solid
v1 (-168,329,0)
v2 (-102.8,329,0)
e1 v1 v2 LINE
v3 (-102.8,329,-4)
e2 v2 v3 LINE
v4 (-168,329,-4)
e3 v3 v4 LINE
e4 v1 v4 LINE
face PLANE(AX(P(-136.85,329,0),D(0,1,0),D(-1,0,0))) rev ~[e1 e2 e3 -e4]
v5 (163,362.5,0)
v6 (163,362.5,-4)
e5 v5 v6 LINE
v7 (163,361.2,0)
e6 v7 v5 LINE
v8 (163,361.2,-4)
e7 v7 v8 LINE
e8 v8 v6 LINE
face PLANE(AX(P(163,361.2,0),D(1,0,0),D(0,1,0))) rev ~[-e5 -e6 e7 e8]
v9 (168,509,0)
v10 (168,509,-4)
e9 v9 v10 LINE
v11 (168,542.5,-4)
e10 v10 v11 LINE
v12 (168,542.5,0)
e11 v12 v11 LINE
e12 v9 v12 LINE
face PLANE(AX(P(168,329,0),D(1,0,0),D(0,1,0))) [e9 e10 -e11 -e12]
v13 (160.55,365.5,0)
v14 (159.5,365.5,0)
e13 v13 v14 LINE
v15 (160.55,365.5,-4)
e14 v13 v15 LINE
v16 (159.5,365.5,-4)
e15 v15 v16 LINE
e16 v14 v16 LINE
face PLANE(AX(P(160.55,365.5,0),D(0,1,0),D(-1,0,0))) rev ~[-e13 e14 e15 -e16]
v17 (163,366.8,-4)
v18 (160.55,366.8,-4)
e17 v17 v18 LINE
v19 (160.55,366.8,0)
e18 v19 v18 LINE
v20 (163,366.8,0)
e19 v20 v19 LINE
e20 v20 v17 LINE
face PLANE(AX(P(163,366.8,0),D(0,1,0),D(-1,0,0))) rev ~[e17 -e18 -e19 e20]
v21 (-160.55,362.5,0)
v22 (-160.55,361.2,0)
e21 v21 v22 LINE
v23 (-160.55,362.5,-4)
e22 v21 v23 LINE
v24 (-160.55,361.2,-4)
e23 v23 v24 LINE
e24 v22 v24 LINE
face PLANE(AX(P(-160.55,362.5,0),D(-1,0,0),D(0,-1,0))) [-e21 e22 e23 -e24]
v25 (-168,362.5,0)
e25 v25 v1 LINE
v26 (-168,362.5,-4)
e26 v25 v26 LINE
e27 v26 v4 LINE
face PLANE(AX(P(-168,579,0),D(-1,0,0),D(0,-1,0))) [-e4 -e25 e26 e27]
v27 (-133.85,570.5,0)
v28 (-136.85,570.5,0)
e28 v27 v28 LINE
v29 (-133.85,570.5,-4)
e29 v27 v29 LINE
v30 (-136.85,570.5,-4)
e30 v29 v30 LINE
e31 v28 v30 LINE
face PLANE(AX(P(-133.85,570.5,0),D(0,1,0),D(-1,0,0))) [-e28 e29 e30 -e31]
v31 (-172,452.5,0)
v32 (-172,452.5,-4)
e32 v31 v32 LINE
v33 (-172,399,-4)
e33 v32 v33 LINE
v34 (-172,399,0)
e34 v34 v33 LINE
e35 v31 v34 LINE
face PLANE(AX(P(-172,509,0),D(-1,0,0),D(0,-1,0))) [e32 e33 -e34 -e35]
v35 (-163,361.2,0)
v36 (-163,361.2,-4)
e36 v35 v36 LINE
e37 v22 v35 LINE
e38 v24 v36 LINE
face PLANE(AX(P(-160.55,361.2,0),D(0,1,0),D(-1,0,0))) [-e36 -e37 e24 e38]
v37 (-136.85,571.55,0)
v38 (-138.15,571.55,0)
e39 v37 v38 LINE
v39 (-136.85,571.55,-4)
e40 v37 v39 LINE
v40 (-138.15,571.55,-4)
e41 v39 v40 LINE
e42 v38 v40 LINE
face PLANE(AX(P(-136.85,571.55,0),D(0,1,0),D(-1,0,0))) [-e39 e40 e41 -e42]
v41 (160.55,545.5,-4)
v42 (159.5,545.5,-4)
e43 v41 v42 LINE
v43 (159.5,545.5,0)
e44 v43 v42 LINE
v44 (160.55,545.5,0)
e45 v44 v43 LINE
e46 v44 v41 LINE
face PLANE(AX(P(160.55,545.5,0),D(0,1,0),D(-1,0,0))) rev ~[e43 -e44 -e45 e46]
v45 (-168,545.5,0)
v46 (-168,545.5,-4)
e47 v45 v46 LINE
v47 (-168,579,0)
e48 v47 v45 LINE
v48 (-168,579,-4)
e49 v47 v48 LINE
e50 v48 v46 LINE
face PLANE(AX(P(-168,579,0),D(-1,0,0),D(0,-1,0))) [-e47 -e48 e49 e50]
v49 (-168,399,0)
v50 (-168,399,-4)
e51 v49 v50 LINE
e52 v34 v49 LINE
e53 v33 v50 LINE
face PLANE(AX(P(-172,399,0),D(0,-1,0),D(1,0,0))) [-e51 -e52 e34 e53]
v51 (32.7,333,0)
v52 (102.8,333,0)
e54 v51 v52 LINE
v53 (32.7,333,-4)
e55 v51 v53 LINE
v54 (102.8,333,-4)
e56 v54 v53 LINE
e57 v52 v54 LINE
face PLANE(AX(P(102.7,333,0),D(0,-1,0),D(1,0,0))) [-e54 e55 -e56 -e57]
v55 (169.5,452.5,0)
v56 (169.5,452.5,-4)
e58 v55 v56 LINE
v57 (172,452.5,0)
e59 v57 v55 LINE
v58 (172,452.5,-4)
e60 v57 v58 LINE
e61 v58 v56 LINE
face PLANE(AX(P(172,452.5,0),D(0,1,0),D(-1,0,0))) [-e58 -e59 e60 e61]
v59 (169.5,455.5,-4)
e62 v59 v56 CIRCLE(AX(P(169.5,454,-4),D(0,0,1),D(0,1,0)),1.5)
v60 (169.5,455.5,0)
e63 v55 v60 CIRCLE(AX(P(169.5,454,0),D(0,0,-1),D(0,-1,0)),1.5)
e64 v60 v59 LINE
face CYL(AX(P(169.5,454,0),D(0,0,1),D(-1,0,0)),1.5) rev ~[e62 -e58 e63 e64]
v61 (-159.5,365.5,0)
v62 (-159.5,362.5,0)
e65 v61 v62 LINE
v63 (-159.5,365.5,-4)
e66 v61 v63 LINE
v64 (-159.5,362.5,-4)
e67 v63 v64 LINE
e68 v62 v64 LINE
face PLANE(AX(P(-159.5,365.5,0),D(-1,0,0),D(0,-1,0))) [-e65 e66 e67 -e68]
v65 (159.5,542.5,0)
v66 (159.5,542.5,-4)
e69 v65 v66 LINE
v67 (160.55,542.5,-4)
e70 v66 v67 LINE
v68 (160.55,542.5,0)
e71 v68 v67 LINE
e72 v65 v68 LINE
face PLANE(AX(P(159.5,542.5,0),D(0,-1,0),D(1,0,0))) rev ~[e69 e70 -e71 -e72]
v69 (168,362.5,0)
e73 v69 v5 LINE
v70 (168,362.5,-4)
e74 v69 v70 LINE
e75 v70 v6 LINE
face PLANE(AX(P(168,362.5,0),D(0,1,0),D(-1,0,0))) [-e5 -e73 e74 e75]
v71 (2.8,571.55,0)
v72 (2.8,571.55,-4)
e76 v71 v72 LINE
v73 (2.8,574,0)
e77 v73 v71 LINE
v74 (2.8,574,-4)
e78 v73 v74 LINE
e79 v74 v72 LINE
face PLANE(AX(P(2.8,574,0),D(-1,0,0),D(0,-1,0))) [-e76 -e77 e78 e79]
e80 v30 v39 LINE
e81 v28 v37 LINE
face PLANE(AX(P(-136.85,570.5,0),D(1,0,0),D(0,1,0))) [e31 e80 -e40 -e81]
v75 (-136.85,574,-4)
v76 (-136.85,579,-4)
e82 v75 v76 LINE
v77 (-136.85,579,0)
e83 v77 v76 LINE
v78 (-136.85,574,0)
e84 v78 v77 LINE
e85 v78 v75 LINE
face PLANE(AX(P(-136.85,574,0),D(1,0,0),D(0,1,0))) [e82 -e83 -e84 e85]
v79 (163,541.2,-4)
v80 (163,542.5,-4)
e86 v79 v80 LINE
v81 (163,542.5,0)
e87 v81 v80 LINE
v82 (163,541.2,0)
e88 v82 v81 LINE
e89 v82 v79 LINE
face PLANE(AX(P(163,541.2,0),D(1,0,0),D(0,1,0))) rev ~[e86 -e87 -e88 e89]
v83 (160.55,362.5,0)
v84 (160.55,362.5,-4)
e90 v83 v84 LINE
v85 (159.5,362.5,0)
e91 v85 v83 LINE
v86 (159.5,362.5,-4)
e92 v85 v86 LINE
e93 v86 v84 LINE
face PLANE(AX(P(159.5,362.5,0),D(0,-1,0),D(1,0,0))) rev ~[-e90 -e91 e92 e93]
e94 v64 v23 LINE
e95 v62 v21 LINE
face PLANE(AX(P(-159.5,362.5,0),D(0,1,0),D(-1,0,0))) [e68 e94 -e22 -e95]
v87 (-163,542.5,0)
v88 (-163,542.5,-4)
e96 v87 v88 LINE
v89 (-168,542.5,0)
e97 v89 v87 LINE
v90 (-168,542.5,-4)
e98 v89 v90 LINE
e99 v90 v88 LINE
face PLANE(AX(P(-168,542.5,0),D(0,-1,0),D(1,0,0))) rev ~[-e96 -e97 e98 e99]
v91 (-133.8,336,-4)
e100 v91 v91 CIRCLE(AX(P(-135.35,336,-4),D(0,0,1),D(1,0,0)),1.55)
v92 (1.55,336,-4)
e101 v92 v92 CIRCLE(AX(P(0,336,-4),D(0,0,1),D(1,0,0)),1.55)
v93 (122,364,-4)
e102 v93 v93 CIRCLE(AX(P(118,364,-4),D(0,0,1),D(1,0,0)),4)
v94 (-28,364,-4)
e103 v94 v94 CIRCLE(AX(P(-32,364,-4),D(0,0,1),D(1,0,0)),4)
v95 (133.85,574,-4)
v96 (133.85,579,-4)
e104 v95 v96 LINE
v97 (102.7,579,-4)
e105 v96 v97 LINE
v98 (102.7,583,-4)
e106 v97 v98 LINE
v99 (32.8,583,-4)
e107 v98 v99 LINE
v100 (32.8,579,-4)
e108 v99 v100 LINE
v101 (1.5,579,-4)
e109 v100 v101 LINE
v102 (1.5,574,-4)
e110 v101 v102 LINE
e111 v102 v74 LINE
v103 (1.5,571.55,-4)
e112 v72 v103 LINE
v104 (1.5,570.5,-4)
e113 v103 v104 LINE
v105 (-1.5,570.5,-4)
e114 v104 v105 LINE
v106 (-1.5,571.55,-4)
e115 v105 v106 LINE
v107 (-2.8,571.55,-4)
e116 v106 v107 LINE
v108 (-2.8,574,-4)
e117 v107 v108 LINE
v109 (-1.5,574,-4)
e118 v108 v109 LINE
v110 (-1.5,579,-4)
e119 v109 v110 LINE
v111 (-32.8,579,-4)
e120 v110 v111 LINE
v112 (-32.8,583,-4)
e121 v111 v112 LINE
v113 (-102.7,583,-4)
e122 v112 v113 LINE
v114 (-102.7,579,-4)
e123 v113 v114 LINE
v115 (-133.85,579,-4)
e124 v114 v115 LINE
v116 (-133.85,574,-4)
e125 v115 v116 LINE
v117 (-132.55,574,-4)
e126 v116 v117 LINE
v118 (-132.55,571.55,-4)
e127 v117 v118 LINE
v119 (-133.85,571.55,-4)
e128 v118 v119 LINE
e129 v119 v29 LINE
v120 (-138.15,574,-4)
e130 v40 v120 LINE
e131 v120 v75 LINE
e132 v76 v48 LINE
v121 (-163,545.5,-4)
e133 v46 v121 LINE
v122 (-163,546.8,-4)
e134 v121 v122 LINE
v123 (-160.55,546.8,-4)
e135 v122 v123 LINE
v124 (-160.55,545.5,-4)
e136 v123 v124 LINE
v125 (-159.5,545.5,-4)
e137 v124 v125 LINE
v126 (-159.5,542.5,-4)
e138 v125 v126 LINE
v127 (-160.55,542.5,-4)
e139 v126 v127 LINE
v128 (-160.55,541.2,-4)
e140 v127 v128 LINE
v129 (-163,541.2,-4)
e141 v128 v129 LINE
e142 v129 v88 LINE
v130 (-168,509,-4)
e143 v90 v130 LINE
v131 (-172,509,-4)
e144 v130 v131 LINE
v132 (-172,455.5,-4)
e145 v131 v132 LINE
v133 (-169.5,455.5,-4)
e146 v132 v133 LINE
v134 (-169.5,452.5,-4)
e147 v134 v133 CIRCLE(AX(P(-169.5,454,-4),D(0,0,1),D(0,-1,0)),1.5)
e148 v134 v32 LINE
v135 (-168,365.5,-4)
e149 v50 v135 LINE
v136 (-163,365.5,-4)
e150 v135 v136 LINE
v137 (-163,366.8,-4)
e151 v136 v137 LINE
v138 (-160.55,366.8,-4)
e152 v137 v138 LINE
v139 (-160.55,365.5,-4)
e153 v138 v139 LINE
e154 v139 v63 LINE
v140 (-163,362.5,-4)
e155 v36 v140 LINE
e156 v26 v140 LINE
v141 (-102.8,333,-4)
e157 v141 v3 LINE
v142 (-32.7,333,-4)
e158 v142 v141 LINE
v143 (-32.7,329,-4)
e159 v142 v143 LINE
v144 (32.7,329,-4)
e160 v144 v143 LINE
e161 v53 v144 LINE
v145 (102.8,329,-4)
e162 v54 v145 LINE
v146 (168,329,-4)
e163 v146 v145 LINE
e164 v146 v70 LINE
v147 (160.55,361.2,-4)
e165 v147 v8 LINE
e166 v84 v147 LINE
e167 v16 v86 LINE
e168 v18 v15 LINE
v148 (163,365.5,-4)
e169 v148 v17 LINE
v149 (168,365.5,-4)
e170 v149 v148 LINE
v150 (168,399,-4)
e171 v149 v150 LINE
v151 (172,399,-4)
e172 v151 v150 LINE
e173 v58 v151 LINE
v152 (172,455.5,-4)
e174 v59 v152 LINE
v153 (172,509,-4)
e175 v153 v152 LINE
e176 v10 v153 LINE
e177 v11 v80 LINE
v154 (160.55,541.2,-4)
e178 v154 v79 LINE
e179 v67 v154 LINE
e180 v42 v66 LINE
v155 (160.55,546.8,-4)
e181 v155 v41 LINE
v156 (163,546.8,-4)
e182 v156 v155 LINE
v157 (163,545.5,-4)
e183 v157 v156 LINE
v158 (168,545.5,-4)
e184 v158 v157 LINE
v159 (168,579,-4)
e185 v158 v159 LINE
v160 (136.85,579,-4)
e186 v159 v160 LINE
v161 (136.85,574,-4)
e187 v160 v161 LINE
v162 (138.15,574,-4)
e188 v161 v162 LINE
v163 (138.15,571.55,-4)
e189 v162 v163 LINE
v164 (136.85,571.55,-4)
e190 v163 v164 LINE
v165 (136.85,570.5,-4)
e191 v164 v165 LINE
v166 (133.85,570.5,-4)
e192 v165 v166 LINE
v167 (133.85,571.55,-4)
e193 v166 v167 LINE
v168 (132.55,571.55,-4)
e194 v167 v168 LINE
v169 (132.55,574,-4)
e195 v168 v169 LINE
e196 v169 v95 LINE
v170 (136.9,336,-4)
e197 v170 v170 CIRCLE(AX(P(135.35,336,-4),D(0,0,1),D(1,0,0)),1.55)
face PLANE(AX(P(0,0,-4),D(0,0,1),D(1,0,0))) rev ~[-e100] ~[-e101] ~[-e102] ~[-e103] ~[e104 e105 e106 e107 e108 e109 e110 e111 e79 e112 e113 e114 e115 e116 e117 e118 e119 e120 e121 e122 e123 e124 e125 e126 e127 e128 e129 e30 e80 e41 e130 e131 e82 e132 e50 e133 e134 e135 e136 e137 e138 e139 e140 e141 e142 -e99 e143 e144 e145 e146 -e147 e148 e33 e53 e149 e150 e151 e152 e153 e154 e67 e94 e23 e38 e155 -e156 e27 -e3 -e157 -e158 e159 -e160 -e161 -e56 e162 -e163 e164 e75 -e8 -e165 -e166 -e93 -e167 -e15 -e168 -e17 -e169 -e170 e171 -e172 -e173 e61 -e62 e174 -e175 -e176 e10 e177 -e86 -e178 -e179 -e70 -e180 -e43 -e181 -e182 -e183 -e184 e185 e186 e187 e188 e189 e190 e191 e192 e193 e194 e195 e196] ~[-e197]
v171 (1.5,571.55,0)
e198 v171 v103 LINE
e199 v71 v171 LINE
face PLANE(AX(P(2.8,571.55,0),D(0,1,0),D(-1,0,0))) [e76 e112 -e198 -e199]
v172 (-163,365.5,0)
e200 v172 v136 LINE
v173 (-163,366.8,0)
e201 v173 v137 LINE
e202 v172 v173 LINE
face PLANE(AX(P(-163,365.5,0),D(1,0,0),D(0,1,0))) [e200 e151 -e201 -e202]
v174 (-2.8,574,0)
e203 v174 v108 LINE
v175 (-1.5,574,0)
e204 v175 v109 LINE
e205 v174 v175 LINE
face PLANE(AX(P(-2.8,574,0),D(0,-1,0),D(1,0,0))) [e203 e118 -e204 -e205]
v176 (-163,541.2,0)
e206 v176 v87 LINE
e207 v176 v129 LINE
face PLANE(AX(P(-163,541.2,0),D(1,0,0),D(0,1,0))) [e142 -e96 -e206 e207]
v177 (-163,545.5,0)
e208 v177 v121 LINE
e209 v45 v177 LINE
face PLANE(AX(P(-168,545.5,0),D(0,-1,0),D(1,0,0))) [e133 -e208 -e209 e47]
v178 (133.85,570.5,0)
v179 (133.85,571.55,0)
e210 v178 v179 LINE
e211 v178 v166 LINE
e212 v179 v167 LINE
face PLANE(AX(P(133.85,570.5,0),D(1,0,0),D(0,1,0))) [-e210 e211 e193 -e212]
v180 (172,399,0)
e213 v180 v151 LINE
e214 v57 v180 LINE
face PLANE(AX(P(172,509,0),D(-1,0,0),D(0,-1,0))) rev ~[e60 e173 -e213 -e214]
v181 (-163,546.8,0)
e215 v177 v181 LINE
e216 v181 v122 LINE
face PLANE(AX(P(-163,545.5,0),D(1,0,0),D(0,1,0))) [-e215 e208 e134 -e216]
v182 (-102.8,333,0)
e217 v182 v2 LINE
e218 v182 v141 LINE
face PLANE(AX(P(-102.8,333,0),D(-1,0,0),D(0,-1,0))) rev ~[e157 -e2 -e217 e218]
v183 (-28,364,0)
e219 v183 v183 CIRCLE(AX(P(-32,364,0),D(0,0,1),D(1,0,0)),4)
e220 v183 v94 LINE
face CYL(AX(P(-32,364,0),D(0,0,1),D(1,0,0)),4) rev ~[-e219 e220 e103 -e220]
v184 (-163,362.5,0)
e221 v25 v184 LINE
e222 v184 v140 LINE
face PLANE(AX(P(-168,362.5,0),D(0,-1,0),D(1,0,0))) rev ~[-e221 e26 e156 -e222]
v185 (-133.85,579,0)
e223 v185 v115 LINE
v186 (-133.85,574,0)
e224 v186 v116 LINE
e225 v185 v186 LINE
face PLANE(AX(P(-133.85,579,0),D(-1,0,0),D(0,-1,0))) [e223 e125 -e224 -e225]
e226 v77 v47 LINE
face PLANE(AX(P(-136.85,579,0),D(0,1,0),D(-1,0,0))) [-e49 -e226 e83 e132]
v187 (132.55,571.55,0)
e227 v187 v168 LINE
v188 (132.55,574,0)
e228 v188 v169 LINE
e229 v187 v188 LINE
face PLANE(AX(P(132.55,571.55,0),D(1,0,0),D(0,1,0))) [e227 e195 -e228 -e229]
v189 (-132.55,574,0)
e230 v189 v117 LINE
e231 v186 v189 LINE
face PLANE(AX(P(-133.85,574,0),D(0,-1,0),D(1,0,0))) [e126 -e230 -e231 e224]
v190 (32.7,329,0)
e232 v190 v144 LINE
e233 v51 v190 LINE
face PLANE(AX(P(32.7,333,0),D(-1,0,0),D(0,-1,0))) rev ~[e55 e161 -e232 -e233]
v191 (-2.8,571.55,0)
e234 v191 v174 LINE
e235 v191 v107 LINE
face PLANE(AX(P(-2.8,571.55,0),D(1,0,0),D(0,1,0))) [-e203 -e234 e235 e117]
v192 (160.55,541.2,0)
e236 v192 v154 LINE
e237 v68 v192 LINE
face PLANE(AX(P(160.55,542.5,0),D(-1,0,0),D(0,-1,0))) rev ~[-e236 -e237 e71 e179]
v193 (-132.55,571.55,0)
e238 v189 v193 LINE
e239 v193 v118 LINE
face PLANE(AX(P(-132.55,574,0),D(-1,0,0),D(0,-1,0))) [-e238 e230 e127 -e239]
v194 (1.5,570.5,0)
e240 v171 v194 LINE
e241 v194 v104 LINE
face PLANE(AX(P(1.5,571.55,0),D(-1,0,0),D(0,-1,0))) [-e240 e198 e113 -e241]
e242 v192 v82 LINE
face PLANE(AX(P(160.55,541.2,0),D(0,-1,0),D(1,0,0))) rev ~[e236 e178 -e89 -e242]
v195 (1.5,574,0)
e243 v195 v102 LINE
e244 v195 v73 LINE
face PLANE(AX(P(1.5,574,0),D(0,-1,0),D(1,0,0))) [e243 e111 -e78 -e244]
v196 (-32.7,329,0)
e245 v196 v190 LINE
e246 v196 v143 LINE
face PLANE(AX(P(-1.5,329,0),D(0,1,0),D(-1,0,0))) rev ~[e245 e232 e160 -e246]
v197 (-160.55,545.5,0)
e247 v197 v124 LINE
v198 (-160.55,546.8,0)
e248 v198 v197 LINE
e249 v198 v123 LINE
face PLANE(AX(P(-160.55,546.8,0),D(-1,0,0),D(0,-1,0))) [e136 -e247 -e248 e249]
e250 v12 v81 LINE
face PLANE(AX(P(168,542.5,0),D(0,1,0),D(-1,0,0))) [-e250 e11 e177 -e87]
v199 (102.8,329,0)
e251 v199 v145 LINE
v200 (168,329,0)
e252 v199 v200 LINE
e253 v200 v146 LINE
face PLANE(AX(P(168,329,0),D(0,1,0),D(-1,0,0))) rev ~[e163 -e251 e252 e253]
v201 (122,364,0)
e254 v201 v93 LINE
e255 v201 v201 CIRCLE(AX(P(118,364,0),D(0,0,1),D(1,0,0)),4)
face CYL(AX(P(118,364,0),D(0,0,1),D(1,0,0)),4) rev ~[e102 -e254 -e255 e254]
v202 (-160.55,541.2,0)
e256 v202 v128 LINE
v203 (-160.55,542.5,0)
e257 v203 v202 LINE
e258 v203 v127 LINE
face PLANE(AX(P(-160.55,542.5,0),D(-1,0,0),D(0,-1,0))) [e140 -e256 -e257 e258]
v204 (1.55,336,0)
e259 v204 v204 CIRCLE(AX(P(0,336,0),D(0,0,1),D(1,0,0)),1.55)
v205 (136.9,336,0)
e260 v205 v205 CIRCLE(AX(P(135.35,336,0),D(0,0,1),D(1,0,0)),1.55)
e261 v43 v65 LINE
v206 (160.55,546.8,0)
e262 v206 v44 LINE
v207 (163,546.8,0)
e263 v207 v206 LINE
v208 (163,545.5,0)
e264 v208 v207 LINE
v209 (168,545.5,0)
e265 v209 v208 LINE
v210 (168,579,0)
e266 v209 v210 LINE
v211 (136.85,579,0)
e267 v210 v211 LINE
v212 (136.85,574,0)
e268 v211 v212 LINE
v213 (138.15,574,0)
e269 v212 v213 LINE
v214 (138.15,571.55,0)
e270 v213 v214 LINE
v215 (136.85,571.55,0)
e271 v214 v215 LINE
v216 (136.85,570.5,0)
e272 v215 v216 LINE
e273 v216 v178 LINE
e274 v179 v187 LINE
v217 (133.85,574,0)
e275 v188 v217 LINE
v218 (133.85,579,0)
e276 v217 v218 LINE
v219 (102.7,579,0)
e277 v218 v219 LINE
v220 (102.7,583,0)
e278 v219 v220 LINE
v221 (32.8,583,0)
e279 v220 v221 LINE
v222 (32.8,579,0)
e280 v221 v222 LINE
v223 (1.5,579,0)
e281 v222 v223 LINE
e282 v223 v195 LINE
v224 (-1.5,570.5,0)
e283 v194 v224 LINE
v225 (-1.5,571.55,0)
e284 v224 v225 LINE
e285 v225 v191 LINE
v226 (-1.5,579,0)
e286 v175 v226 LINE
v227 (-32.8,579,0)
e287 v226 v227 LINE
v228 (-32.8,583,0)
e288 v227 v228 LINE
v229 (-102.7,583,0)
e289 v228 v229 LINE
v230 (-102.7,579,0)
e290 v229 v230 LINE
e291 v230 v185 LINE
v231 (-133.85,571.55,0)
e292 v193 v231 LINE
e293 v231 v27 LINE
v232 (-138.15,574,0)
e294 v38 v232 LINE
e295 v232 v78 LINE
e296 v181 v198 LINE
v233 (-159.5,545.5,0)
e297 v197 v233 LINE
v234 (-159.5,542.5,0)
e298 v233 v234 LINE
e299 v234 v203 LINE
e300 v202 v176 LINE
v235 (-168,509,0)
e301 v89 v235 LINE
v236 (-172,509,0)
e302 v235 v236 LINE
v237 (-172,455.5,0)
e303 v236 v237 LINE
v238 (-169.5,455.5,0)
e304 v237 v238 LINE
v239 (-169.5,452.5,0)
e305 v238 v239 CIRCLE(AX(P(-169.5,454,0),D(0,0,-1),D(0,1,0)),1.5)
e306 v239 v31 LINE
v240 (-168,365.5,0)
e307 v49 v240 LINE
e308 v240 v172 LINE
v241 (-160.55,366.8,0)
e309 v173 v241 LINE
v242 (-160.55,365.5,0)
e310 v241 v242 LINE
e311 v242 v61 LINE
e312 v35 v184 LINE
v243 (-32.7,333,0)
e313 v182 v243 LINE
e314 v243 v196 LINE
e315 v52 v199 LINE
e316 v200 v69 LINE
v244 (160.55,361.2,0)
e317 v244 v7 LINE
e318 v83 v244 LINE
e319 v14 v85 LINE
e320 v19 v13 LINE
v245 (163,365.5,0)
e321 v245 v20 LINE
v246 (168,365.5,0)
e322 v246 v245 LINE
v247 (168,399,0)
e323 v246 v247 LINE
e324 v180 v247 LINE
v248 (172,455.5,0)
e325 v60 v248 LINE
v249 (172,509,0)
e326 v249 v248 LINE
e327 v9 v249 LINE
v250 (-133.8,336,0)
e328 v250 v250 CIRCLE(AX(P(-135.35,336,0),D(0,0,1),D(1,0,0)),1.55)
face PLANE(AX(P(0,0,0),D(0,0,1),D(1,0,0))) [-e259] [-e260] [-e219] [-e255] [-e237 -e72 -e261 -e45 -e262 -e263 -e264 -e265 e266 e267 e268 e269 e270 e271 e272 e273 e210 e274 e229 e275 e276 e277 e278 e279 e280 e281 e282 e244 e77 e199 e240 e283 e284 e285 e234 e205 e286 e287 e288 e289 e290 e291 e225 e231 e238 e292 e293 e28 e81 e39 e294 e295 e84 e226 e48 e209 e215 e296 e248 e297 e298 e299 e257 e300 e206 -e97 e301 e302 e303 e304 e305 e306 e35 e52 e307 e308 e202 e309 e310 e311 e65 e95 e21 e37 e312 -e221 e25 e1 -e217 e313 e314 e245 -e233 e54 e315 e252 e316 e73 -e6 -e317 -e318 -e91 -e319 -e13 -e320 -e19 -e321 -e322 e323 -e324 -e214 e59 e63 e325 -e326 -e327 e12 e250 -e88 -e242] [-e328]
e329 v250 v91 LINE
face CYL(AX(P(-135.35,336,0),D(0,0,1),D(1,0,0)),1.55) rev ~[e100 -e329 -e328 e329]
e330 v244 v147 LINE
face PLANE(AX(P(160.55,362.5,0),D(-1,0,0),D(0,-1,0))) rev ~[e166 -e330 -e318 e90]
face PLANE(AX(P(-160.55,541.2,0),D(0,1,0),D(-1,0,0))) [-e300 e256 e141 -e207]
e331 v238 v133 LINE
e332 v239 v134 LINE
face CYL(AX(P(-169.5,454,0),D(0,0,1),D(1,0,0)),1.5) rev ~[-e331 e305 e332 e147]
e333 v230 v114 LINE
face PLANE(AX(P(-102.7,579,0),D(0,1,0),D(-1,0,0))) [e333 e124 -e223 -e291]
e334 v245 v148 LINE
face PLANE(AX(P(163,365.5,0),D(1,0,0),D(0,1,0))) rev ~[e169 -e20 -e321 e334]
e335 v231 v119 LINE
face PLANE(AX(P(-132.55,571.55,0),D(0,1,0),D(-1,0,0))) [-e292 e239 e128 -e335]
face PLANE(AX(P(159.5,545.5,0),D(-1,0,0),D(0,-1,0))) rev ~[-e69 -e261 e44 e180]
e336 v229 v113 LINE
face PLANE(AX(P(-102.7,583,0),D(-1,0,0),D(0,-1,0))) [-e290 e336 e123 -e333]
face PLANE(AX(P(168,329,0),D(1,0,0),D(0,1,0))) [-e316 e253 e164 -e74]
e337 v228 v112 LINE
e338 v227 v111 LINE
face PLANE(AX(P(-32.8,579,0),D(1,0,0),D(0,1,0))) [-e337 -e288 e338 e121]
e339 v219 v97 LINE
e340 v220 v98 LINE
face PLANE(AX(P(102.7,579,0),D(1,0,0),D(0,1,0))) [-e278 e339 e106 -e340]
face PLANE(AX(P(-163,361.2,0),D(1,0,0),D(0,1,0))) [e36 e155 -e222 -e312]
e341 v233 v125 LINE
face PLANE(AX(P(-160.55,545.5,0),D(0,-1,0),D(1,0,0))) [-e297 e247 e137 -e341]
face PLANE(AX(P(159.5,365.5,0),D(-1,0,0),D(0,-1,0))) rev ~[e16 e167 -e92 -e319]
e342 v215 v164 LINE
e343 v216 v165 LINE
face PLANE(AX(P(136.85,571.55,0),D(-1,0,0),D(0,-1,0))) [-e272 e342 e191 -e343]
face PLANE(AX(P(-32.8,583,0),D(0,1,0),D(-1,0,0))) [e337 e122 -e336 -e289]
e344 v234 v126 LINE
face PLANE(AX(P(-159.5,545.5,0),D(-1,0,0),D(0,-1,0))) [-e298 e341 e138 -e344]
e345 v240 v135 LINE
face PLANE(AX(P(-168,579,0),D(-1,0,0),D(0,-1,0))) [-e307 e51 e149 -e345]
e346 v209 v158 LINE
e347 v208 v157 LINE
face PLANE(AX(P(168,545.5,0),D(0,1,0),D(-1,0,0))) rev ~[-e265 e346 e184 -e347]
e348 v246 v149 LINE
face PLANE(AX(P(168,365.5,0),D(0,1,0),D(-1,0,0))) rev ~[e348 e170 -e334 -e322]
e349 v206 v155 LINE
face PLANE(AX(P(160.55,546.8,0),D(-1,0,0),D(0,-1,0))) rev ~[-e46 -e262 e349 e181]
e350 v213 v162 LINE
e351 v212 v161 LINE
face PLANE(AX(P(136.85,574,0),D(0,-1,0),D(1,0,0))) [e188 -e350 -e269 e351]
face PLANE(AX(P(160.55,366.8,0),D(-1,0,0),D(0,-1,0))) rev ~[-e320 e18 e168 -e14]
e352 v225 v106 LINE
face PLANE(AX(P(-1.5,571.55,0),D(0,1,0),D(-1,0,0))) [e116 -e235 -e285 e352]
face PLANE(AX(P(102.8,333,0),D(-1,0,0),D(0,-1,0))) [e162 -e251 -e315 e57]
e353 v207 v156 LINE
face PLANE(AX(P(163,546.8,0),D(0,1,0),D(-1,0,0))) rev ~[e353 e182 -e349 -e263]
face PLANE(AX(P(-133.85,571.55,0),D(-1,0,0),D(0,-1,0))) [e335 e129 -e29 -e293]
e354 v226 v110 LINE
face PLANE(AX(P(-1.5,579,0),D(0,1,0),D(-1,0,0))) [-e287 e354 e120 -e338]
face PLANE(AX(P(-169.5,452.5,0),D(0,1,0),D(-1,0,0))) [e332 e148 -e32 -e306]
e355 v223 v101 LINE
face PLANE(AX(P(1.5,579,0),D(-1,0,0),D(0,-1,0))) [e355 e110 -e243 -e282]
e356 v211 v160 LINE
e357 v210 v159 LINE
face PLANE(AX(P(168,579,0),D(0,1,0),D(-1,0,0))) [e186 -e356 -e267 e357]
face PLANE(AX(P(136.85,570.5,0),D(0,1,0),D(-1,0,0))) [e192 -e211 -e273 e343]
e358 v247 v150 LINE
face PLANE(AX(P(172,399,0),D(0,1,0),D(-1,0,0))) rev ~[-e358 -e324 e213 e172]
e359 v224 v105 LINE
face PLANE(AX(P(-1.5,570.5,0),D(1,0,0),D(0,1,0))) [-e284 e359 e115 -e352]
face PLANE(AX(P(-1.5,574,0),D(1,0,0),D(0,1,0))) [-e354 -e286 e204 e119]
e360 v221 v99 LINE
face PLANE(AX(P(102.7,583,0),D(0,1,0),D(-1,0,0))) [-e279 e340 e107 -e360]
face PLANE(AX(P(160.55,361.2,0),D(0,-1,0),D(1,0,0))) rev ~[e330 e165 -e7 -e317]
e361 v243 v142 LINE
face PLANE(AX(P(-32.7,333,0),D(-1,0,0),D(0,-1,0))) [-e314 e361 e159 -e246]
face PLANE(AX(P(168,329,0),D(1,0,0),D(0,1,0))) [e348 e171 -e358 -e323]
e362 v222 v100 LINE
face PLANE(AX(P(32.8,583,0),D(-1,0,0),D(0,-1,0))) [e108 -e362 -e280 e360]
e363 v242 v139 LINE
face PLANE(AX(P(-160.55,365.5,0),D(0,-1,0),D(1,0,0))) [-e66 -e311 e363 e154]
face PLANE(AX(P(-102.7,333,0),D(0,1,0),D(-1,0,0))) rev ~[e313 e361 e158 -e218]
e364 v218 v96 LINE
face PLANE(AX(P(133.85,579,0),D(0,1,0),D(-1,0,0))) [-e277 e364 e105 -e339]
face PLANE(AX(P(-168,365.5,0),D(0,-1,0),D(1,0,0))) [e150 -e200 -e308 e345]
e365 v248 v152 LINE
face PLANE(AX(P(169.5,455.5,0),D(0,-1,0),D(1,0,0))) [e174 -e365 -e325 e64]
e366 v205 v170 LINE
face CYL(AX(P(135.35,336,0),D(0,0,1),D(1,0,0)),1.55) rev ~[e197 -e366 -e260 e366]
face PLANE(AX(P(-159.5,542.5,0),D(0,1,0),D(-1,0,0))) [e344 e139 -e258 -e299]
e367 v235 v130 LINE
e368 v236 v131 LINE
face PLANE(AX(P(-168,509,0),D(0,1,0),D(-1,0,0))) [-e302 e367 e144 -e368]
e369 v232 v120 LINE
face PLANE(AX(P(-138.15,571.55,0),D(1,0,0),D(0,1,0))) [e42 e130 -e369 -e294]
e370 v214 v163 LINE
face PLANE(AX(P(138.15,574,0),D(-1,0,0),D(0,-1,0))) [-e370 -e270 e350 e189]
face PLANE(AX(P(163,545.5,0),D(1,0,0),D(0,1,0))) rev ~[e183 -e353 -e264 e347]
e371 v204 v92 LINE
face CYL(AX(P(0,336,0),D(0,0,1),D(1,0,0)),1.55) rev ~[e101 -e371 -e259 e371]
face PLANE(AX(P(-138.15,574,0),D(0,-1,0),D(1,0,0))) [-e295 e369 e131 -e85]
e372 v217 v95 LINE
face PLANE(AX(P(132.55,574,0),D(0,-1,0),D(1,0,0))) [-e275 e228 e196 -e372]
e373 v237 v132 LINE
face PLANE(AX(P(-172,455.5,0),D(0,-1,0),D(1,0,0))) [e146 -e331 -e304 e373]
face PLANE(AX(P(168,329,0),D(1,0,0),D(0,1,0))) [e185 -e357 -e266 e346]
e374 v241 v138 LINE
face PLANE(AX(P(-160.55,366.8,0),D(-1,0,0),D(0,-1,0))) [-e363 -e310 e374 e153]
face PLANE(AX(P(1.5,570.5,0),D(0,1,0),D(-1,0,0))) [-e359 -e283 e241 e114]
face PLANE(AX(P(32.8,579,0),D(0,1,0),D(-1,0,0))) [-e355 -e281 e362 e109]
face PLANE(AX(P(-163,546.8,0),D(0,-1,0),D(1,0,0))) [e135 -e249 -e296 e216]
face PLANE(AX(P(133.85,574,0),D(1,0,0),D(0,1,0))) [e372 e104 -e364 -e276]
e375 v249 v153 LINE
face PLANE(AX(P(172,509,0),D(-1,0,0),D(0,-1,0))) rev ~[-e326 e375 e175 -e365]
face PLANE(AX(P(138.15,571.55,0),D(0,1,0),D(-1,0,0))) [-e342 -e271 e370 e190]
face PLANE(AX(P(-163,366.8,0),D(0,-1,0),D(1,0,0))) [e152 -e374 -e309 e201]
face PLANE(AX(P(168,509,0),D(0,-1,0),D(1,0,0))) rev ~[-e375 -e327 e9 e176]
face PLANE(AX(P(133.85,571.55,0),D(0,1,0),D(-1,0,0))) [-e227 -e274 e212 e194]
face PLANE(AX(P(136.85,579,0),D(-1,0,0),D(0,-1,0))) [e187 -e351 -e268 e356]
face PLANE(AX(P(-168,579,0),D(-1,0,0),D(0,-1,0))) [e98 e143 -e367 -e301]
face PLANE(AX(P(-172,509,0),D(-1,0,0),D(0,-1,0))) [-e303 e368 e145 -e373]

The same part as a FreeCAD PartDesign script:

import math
import FreeCAD as App
import Part
import Sketcher


def add_polygon(sketch, points):
    """Adds a closed chain of lines whose ends are joined by coincident constraints."""
    first, n = sketch.GeometryCount, len(points)
    for a, b in zip(points, points[1:] + points[:1]):
        sketch.addGeometry(Part.LineSegment(App.Vector(*a, 0), App.Vector(*b, 0)), False)
    for i in range(n):
        sketch.addConstraint(Sketcher.Constraint("Coincident", first + i, 2, first + (i + 1) % n, 1))

doc = App.newDocument("Part")
body = doc.addObject("PartDesign::Body", "Body")

sketch1 = body.newObject("Sketcher::SketchObject", "Sketch")
sketch1.AttachmentSupport = (doc.getObject("XY_Plane"), [""])
sketch1.MapMode = "FlatFace"
add_polygon(sketch1, [(-2.8, 574), (-1.5, 574), (-1.5, 579), (-32.8, 579), (-32.8, 583), (-102.7, 583), (-102.7, 579), (-133.8, 579), (-133.8, 574), (-132.6, 574), (-132.6, 571.5), (-133.8, 571.5), (-133.8, 570.5), (-136.8, 570.5), (-136.8, 571.5), (-138.2, 571.5), (-138.2, 574), (-136.8, 574), (-136.8, 579), (-168, 579), (-168, 329), (-102.8, 329), (-102.8, 333), (-32.7, 333), (-32.7, 329), (32.7, 329), (32.7, 333), (102.8, 333), (102.8, 329), (168, 329), (168, 579), (136.8, 579), (136.8, 574), (138.2, 574), (138.2, 571.5), (136.8, 571.5), (136.8, 570.5), (133.8, 570.5), (133.8, 571.5), (132.6, 571.5), (132.6, 574), (133.8, 574), (133.8, 579), (102.7, 579), (102.7, 583), (32.8, 583), (32.8, 579), (1.5, 579), (1.5, 574), (2.8, 574), (2.8, 571.5), (1.5, 571.5), (1.5, 570.5), (-1.5, 570.5), (-1.5, 571.5), (-2.8, 571.5)])
sketch1.addGeometry(Part.Circle(App.Vector(-135.3, 336, 0), App.Vector(0, 0, 1), 1.6), False)
sketch1.addGeometry(Part.Circle(App.Vector(0, 336, 0), App.Vector(0, 0, 1), 1.6), False)
sketch1.addGeometry(Part.Circle(App.Vector(135.3, 336, 0), App.Vector(0, 0, 1), 1.6), False)
sketch1.addConstraint(Sketcher.Constraint("Horizontal", 0))
sketch1.addConstraint(Sketcher.Constraint("Vertical", 1))
sketch1.addConstraint(Sketcher.Constraint("Horizontal", 2))
sketch1.addConstraint(Sketcher.Constraint("Vertical", 3))
sketch1.addConstraint(Sketcher.Constraint("Horizontal", 4))
sketch1.addConstraint(Sketcher.Constraint("Vertical", 5))
sketch1.addConstraint(Sketcher.Constraint("Horizontal", 6))
sketch1.addConstraint(Sketcher.Constraint("Vertical", 7))
sketch1.addConstraint(Sketcher.Constraint("Horizontal", 8))
sketch1.addConstraint(Sketcher.Constraint("Vertical", 9))
sketch1.addConstraint(Sketcher.Constraint("Horizontal", 10))
sketch1.addConstraint(Sketcher.Constraint("Vertical", 11))
sketch1.addConstraint(Sketcher.Constraint("Horizontal", 12))
sketch1.addConstraint(Sketcher.Constraint("Vertical", 13))
sketch1.addConstraint(Sketcher.Constraint("Horizontal", 14))
sketch1.addConstraint(Sketcher.Constraint("Vertical", 15))
sketch1.addConstraint(Sketcher.Constraint("Horizontal", 16))
sketch1.addConstraint(Sketcher.Constraint("Vertical", 17))
sketch1.addConstraint(Sketcher.Constraint("Horizontal", 18))
sketch1.addConstraint(Sketcher.Constraint("Vertical", 19))
sketch1.addConstraint(Sketcher.Constraint("Horizontal", 20))
sketch1.addConstraint(Sketcher.Constraint("Vertical", 21))
sketch1.addConstraint(Sketcher.Constraint("Horizontal", 22))
sketch1.addConstraint(Sketcher.Constraint("Vertical", 23))
sketch1.addConstraint(Sketcher.Constraint("Horizontal", 24))
sketch1.addConstraint(Sketcher.Constraint("Vertical", 25))
sketch1.addConstraint(Sketcher.Constraint("Horizontal", 26))
sketch1.addConstraint(Sketcher.Constraint("Vertical", 27))
sketch1.addConstraint(Sketcher.Constraint("Horizontal", 28))
sketch1.addConstraint(Sketcher.Constraint("Vertical", 29))
sketch1.addConstraint(Sketcher.Constraint("Horizontal", 30))
sketch1.addConstraint(Sketcher.Constraint("Vertical", 31))
sketch1.addConstraint(Sketcher.Constraint("Horizontal", 32))
sketch1.addConstraint(Sketcher.Constraint("Vertical", 33))
sketch1.addConstraint(Sketcher.Constraint("Horizontal", 34))
sketch1.addConstraint(Sketcher.Constraint("Vertical", 35))
sketch1.addConstraint(Sketcher.Constraint("Horizontal", 36))
sketch1.addConstraint(Sketcher.Constraint("Vertical", 37))
sketch1.addConstraint(Sketcher.Constraint("Horizontal", 38))
sketch1.addConstraint(Sketcher.Constraint("Vertical", 39))
sketch1.addConstraint(Sketcher.Constraint("Horizontal", 40))
sketch1.addConstraint(Sketcher.Constraint("Vertical", 41))
sketch1.addConstraint(Sketcher.Constraint("Horizontal", 42))
sketch1.addConstraint(Sketcher.Constraint("Vertical", 43))
sketch1.addConstraint(Sketcher.Constraint("Horizontal", 44))
sketch1.addConstraint(Sketcher.Constraint("Vertical", 45))
sketch1.addConstraint(Sketcher.Constraint("Horizontal", 46))
sketch1.addConstraint(Sketcher.Constraint("Vertical", 47))
sketch1.addConstraint(Sketcher.Constraint("Horizontal", 48))
sketch1.addConstraint(Sketcher.Constraint("Vertical", 49))
sketch1.addConstraint(Sketcher.Constraint("Horizontal", 50))
sketch1.addConstraint(Sketcher.Constraint("Vertical", 51))
sketch1.addConstraint(Sketcher.Constraint("Horizontal", 52))
sketch1.addConstraint(Sketcher.Constraint("Vertical", 53))
sketch1.addConstraint(Sketcher.Constraint("Horizontal", 54))
sketch1.addConstraint(Sketcher.Constraint("Vertical", 55))
sketch1.addConstraint(Sketcher.Constraint("Equal", 56, 57))
sketch1.addConstraint(Sketcher.Constraint("Equal", 57, 58))
sketch1.addConstraint(Sketcher.Constraint("Symmetric", 56, 3, 58, 3, -2))
sketch1.addConstraint(Sketcher.Constraint("Symmetric", 22, 2, 25, 2, -2))
sketch1.addConstraint(Sketcher.Constraint("Symmetric", 20, 2, 27, 2, -2))
sketch1.addConstraint(Sketcher.Constraint("Symmetric", 18, 2, 29, 2, -2))
sketch1.addConstraint(Sketcher.Constraint("Symmetric", 16, 2, 31, 2, -2))
sketch1.addConstraint(Sketcher.Constraint("Symmetric", 14, 2, 33, 2, -2))
sketch1.addConstraint(Sketcher.Constraint("Symmetric", 12, 2, 35, 2, -2))
sketch1.addConstraint(Sketcher.Constraint("Symmetric", 10, 2, 37, 2, -2))
sketch1.addConstraint(Sketcher.Constraint("Symmetric", 8, 2, 39, 2, -2))
sketch1.addConstraint(Sketcher.Constraint("Symmetric", 6, 2, 41, 2, -2))
sketch1.addConstraint(Sketcher.Constraint("Symmetric", 4, 2, 43, 2, -2))
sketch1.addConstraint(Sketcher.Constraint("Symmetric", 2, 2, 45, 2, -2))
sketch1.addConstraint(Sketcher.Constraint("Symmetric", 0, 2, 47, 2, -2))
sketch1.addConstraint(Sketcher.Constraint("Symmetric", 50, 2, 53, 2, -2))
sketch1.addConstraint(Sketcher.Constraint("PointOnObject", 57, 3, -2))
sketch1.addConstraint(Sketcher.Constraint("Horizontal", 56, 3, 57, 3))
sketch1.addConstraint(Sketcher.Constraint("Horizontal", 2, 2, 5, 2))
sketch1.addConstraint(Sketcher.Constraint("Horizontal", 0, 2, 7, 2))
sketch1.addConstraint(Sketcher.Constraint("Horizontal", 10, 2, 13, 2))
sketch1.addConstraint(Sketcher.Constraint("Horizontal", 8, 2, 15, 2))
sketch1.addConstraint(Sketcher.Constraint("Horizontal", 6, 2, 17, 2))
sketch1.addConstraint(Sketcher.Constraint("Horizontal", 20, 2, 23, 2))
sketch1.addConstraint(Sketcher.Constraint("Horizontal", 38, 2, 49, 2))
sketch1.addConstraint(Sketcher.Constraint("Horizontal", 36, 2, 51, 2))
sketch1.addConstraint(Sketcher.Constraint("Vertical", 7, 2, 10, 2))
sketch1.addConstraint(Sketcher.Constraint("Vertical", 13, 2, 16, 2))
sketch1.addConstraint(Sketcher.Constraint("Vertical", 47, 2, 50, 2))
sketch1.addConstraint(Sketcher.Constraint("Equal", 0, 8))
sketch1.addConstraint(Sketcher.Constraint("Equal", 10, 14))
sketch1.addConstraint(Sketcher.Constraint("Equal", 6, 18))
sketch1.addConstraint(Sketcher.Constraint("Equal", 40, 48))
sketch1.addConstraint(Sketcher.Constraint("Equal", 36, 52))
sketch1.addConstraint(Sketcher.Constraint("Equal", 5, 21))
sketch1.addConstraint(Sketcher.Constraint("Diameter", 56, 3.1))
sketch1.addConstraint(Sketcher.Constraint("DistanceY", 1, 1, 1, 2, 5.0))
sketch1.addConstraint(Sketcher.Constraint("DistanceY", 3, 1, 3, 2, 4.0))
sketch1.addConstraint(Sketcher.Constraint("DistanceY", 19, 2, 19, 1, 250.0))
sketch1.addConstraint(Sketcher.Constraint("DistanceY", 19, 2, 56, 3, 7.0))
sketch1.addConstraint(Sketcher.Constraint("DistanceY", 9, 2, 9, 1, 2.45))
sketch1.addConstraint(Sketcher.Constraint("DistanceY", 11, 2, 11, 1, 1.05))
sketch1.addConstraint(Sketcher.Constraint("DistanceX", 12, 2, 12, 1, 3.0))
sketch1.addConstraint(Sketcher.Constraint("DistanceX", 0, 1, 0, 2, 1.3))
sketch1.addConstraint(Sketcher.Constraint("DistanceX", 2, 2, 2, 1, 31.3))
sketch1.addConstraint(Sketcher.Constraint("DistanceX", 4, 2, 4, 1, 69.9))
sketch1.addConstraint(Sketcher.Constraint("DistanceX", 20, 1, 20, 2, 65.2))
sketch1.addConstraint(Sketcher.Constraint("DistanceX", 22, 1, 22, 2, 70.1))
sketch1.addConstraint(Sketcher.Constraint("DistanceX", 24, 1, 24, 2, 65.4))
sketch1.addConstraint(Sketcher.Constraint("DistanceY", -1, 1, 56, 3, 336.0))
sketch1.addConstraint(Sketcher.Constraint("DistanceX", 56, 3, 58, 3, 270.7))
pad1 = body.newObject("PartDesign::Pad", "Pad")
pad1.Profile = sketch1
pad1.Length = 4
pad1.Reversed = True

sketch2 = body.newObject("Sketcher::SketchObject", "Sketch001")
sketch2.AttachmentSupport = (doc.getObject("XY_Plane"), [""])
sketch2.MapMode = "FlatFace"
sketch2.addGeometry(Part.Circle(App.Vector(-32, 364, 0), App.Vector(0, 0, 1), 4), False)
sketch2.addGeometry(Part.Circle(App.Vector(118, 364, 0), App.Vector(0, 0, 1), 4), False)
sketch2.addConstraint(Sketcher.Constraint("Equal", 0, 1))
sketch2.addConstraint(Sketcher.Constraint("Horizontal", 0, 3, 1, 3))
sketch2.addConstraint(Sketcher.Constraint("Diameter", 0, 8.0))
sketch2.addConstraint(Sketcher.Constraint("DistanceX", 0, 3, 1, 3, 150.0))
sketch2.addConstraint(Sketcher.Constraint("DistanceX", 0, 3, -1, 1, 32.0))
sketch2.addConstraint(Sketcher.Constraint("DistanceY", -1, 1, 0, 3, 364.0))
pocket1 = body.newObject("PartDesign::Pocket", "Pocket")
pocket1.Profile = sketch2
pocket1.Length = 4

sketch3 = body.newObject("Sketcher::SketchObject", "Sketch002")
sketch3.AttachmentSupport = (doc.getObject("XY_Plane"), [""])
sketch3.MapMode = "FlatFace"
add_polygon(sketch3, [(-168, 365.5), (-168, 362.5), (-163, 362.5), (-163, 361.2), (-160.6, 361.2), (-160.6, 362.5), (-159.5, 362.5), (-159.5, 365.5), (-160.6, 365.5), (-160.6, 366.8), (-163, 366.8), (-163, 365.5)])
add_polygon(sketch3, [(163, 362.5), (168, 362.5), (168, 365.5), (163, 365.5), (163, 366.8), (160.6, 366.8), (160.6, 365.5), (159.5, 365.5), (159.5, 362.5), (160.6, 362.5), (160.6, 361.2), (163, 361.2)])
add_polygon(sketch3, [(-168, 545.5), (-168, 542.5), (-163, 542.5), (-163, 541.2), (-160.6, 541.2), (-160.6, 542.5), (-159.5, 542.5), (-159.5, 545.5), (-160.6, 545.5), (-160.6, 546.8), (-163, 546.8), (-163, 545.5)])
add_polygon(sketch3, [(163, 542.5), (168, 542.5), (168, 545.5), (163, 545.5), (163, 546.8), (160.6, 546.8), (160.6, 545.5), (159.5, 545.5), (159.5, 542.5), (160.6, 542.5), (160.6, 541.2), (163, 541.2)])
sketch3.addConstraint(Sketcher.Constraint("Vertical", 0))
sketch3.addConstraint(Sketcher.Constraint("Horizontal", 1))
sketch3.addConstraint(Sketcher.Constraint("Vertical", 2))
sketch3.addConstraint(Sketcher.Constraint("Horizontal", 3))
sketch3.addConstraint(Sketcher.Constraint("Vertical", 4))
sketch3.addConstraint(Sketcher.Constraint("Horizontal", 5))
sketch3.addConstraint(Sketcher.Constraint("Vertical", 6))
sketch3.addConstraint(Sketcher.Constraint("Horizontal", 7))
sketch3.addConstraint(Sketcher.Constraint("Vertical", 8))
sketch3.addConstraint(Sketcher.Constraint("Horizontal", 9))
sketch3.addConstraint(Sketcher.Constraint("Vertical", 10))
sketch3.addConstraint(Sketcher.Constraint("Horizontal", 11))
sketch3.addConstraint(Sketcher.Constraint("Horizontal", 12))
sketch3.addConstraint(Sketcher.Constraint("Vertical", 13))
sketch3.addConstraint(Sketcher.Constraint("Horizontal", 14))
sketch3.addConstraint(Sketcher.Constraint("Vertical", 15))
sketch3.addConstraint(Sketcher.Constraint("Horizontal", 16))
sketch3.addConstraint(Sketcher.Constraint("Vertical", 17))
sketch3.addConstraint(Sketcher.Constraint("Horizontal", 18))
sketch3.addConstraint(Sketcher.Constraint("Vertical", 19))
sketch3.addConstraint(Sketcher.Constraint("Horizontal", 20))
sketch3.addConstraint(Sketcher.Constraint("Vertical", 21))
sketch3.addConstraint(Sketcher.Constraint("Horizontal", 22))
sketch3.addConstraint(Sketcher.Constraint("Vertical", 23))
sketch3.addConstraint(Sketcher.Constraint("Vertical", 24))
sketch3.addConstraint(Sketcher.Constraint("Horizontal", 25))
sketch3.addConstraint(Sketcher.Constraint("Vertical", 26))
sketch3.addConstraint(Sketcher.Constraint("Horizontal", 27))
sketch3.addConstraint(Sketcher.Constraint("Vertical", 28))
sketch3.addConstraint(Sketcher.Constraint("Horizontal", 29))
sketch3.addConstraint(Sketcher.Constraint("Vertical", 30))
sketch3.addConstraint(Sketcher.Constraint("Horizontal", 31))
sketch3.addConstraint(Sketcher.Constraint("Vertical", 32))
sketch3.addConstraint(Sketcher.Constraint("Horizontal", 33))
sketch3.addConstraint(Sketcher.Constraint("Vertical", 34))
sketch3.addConstraint(Sketcher.Constraint("Horizontal", 35))
sketch3.addConstraint(Sketcher.Constraint("Horizontal", 36))
sketch3.addConstraint(Sketcher.Constraint("Vertical", 37))
sketch3.addConstraint(Sketcher.Constraint("Horizontal", 38))
sketch3.addConstraint(Sketcher.Constraint("Vertical", 39))
sketch3.addConstraint(Sketcher.Constraint("Horizontal", 40))
sketch3.addConstraint(Sketcher.Constraint("Vertical", 41))
sketch3.addConstraint(Sketcher.Constraint("Horizontal", 42))
sketch3.addConstraint(Sketcher.Constraint("Vertical", 43))
sketch3.addConstraint(Sketcher.Constraint("Horizontal", 44))
sketch3.addConstraint(Sketcher.Constraint("Vertical", 45))
sketch3.addConstraint(Sketcher.Constraint("Horizontal", 46))
sketch3.addConstraint(Sketcher.Constraint("Vertical", 47))
sketch3.addConstraint(Sketcher.Constraint("Symmetric", 0, 2, 12, 2, -2))
sketch3.addConstraint(Sketcher.Constraint("Symmetric", 10, 2, 14, 2, -2))
sketch3.addConstraint(Sketcher.Constraint("Symmetric", 8, 2, 16, 2, -2))
sketch3.addConstraint(Sketcher.Constraint("Symmetric", 6, 2, 18, 2, -2))
sketch3.addConstraint(Sketcher.Constraint("Symmetric", 4, 2, 20, 2, -2))
sketch3.addConstraint(Sketcher.Constraint("Symmetric", 2, 2, 22, 2, -2))
sketch3.addConstraint(Sketcher.Constraint("Symmetric", 24, 2, 36, 2, -2))
sketch3.addConstraint(Sketcher.Constraint("Symmetric", 34, 2, 38, 2, -2))
sketch3.addConstraint(Sketcher.Constraint("Symmetric", 32, 2, 40, 2, -2))
sketch3.addConstraint(Sketcher.Constraint("Symmetric", 30, 2, 42, 2, -2))
sketch3.addConstraint(Sketcher.Constraint("Symmetric", 28, 2, 44, 2, -2))
sketch3.addConstraint(Sketcher.Constraint("Symmetric", 26, 2, 46, 2, -2))
sketch3.addConstraint(Sketcher.Constraint("Horizontal", 1, 2, 4, 2))
sketch3.addConstraint(Sketcher.Constraint("Horizontal", 7, 2, 10, 2))
sketch3.addConstraint(Sketcher.Constraint("Horizontal", 25, 2, 28, 2))
sketch3.addConstraint(Sketcher.Constraint("Horizontal", 31, 2, 34, 2))
sketch3.addConstraint(Sketcher.Constraint("Vertical", 4, 2, 7, 2))
sketch3.addConstraint(Sketcher.Constraint("Vertical", 2, 2, 9, 2))
sketch3.addConstraint(Sketcher.Constraint("Vertical", 11, 2, 24, 2))
sketch3.addConstraint(Sketcher.Constraint("Vertical", 10, 2, 25, 2))
sketch3.addConstraint(Sketcher.Constraint("Vertical", 8, 2, 27, 2))
sketch3.addConstraint(Sketcher.Constraint("Vertical", 6, 2, 29, 2))
sketch3.addConstraint(Sketcher.Constraint("Vertical", 28, 2, 31, 2))
sketch3.addConstraint(Sketcher.Constraint("Vertical", 26, 2, 33, 2))
sketch3.addConstraint(Sketcher.Constraint("Equal", 4, 8))
sketch3.addConstraint(Sketcher.Constraint("Equal", 19, 24))
sketch3.addConstraint(Sketcher.Constraint("Equal", 23, 26))
sketch3.addConstraint(Sketcher.Constraint("Equal", 28, 32))
sketch3.addConstraint(Sketcher.Constraint("DistanceX", 1, 1, 1, 2, 5.0))
sketch3.addConstraint(Sketcher.Constraint("DistanceY", 0, 2, 0, 1, 3.0))
sketch3.addConstraint(Sketcher.Constraint("DistanceX", 0, 2, -1, 1, 168.0))
sketch3.addConstraint(Sketcher.Constraint("DistanceY", 13, 2, 37, 2, 180.0))
sketch3.addConstraint(Sketcher.Constraint("DistanceX", 0, 2, 5, 2, 8.5))
sketch3.addConstraint(Sketcher.Constraint("DistanceX", 0, 2, 3, 2, 7.45))
sketch3.addConstraint(Sketcher.Constraint("DistanceY", 2, 2, 2, 1, 1.3))
sketch3.addConstraint(Sketcher.Constraint("DistanceY", -1, 1, 0, 2, 362.5))
pocket2 = body.newObject("PartDesign::Pocket", "Pocket001")
pocket2.Profile = sketch3
pocket2.Length = 4

sketch4 = body.newObject("Sketcher::SketchObject", "Sketch003")
sketch4.AttachmentSupport = (doc.getObject("XY_Plane"), [""])
sketch4.MapMode = "FlatFace"
add_polygon(sketch4, [(-172, 399), (-168, 399), (-168, 509), (-172, 509)])
add_polygon(sketch4, [(168, 509), (168, 399), (172, 399), (172, 509)])
sketch4.addConstraint(Sketcher.Constraint("Horizontal", 0))
sketch4.addConstraint(Sketcher.Constraint("Vertical", 1))
sketch4.addConstraint(Sketcher.Constraint("Horizontal", 2))
sketch4.addConstraint(Sketcher.Constraint("Vertical", 3))
sketch4.addConstraint(Sketcher.Constraint("Vertical", 4))
sketch4.addConstraint(Sketcher.Constraint("Horizontal", 5))
sketch4.addConstraint(Sketcher.Constraint("Vertical", 6))
sketch4.addConstraint(Sketcher.Constraint("Horizontal", 7))
sketch4.addConstraint(Sketcher.Constraint("Symmetric", 0, 2, 4, 2, -2))
sketch4.addConstraint(Sketcher.Constraint("Symmetric", 2, 2, 6, 2, -2))
sketch4.addConstraint(Sketcher.Constraint("DistanceX", 0, 1, 0, 2, 4.0))
sketch4.addConstraint(Sketcher.Constraint("DistanceX", 0, 2, -1, 1, 168.0))
sketch4.addConstraint(Sketcher.Constraint("DistanceY", 1, 1, 1, 2, 110.0))
sketch4.addConstraint(Sketcher.Constraint("DistanceY", -1, 1, 0, 2, 399.0))
pad2 = body.newObject("PartDesign::Pad", "Pad001")
pad2.Profile = sketch4
pad2.Length = 4
pad2.Reversed = True

sketch5 = body.newObject("Sketcher::SketchObject", "Sketch004")
sketch5.AttachmentSupport = (doc.getObject("XY_Plane"), [""])
sketch5.MapMode = "FlatFace"
sketch5.addGeometry(Part.LineSegment(App.Vector(-169.5, 455.5, 0), App.Vector(-172, 455.5, 0)), False)
sketch5.addGeometry(Part.LineSegment(App.Vector(-172, 455.5, 0), App.Vector(-172, 452.5, 0)), False)
sketch5.addGeometry(Part.LineSegment(App.Vector(-172, 452.5, 0), App.Vector(-169.5, 452.5, 0)), False)
sketch5.addGeometry(Part.ArcOfCircle(Part.Circle(App.Vector(-169.5, 454, 0), App.Vector(0, 0, 1), 1.5), math.radians(-90), math.radians(90)), False)
sketch5.addGeometry(Part.LineSegment(App.Vector(172, 455.5, 0), App.Vector(169.5, 455.5, 0)), False)
sketch5.addGeometry(Part.ArcOfCircle(Part.Circle(App.Vector(169.5, 454, 0), App.Vector(0, 0, 1), 1.5), math.radians(90), math.radians(270)), False)
sketch5.addGeometry(Part.LineSegment(App.Vector(169.5, 452.5, 0), App.Vector(172, 452.5, 0)), False)
sketch5.addGeometry(Part.LineSegment(App.Vector(172, 452.5, 0), App.Vector(172, 455.5, 0)), False)
sketch5.addConstraint(Sketcher.Constraint("Coincident", 0, 2, 1, 1))
sketch5.addConstraint(Sketcher.Constraint("Coincident", 1, 2, 2, 1))
sketch5.addConstraint(Sketcher.Constraint("Tangent", 2, 2, 3, 1))
sketch5.addConstraint(Sketcher.Constraint("Tangent", 3, 2, 0, 1))
sketch5.addConstraint(Sketcher.Constraint("Tangent", 4, 2, 5, 1))
sketch5.addConstraint(Sketcher.Constraint("Tangent", 5, 2, 6, 1))
sketch5.addConstraint(Sketcher.Constraint("Coincident", 6, 2, 7, 1))
sketch5.addConstraint(Sketcher.Constraint("Coincident", 7, 2, 4, 1))
sketch5.addConstraint(Sketcher.Constraint("Horizontal", 0))
sketch5.addConstraint(Sketcher.Constraint("Vertical", 1))
sketch5.addConstraint(Sketcher.Constraint("Horizontal", 2))
sketch5.addConstraint(Sketcher.Constraint("Horizontal", 4))
sketch5.addConstraint(Sketcher.Constraint("Horizontal", 6))
sketch5.addConstraint(Sketcher.Constraint("Vertical", 7))
sketch5.addConstraint(Sketcher.Constraint("Equal", 3, 5))
sketch5.addConstraint(Sketcher.Constraint("Symmetric", 3, 3, 5, 3, -2))
sketch5.addConstraint(Sketcher.Constraint("Equal", 2, 4))
sketch5.addConstraint(Sketcher.Constraint("Radius", 3, 1.5))
sketch5.addConstraint(Sketcher.Constraint("DistanceX", 0, 2, 0, 1, 2.5))
sketch5.addConstraint(Sketcher.Constraint("DistanceY", -1, 1, 3, 3, 454.0))
sketch5.addConstraint(Sketcher.Constraint("DistanceX", 0, 2, -1, 1, 172.0))
pocket3 = body.newObject("PartDesign::Pocket", "Pocket002")
pocket3.Profile = sketch5
pocket3.Length = 4

doc.recompute()
